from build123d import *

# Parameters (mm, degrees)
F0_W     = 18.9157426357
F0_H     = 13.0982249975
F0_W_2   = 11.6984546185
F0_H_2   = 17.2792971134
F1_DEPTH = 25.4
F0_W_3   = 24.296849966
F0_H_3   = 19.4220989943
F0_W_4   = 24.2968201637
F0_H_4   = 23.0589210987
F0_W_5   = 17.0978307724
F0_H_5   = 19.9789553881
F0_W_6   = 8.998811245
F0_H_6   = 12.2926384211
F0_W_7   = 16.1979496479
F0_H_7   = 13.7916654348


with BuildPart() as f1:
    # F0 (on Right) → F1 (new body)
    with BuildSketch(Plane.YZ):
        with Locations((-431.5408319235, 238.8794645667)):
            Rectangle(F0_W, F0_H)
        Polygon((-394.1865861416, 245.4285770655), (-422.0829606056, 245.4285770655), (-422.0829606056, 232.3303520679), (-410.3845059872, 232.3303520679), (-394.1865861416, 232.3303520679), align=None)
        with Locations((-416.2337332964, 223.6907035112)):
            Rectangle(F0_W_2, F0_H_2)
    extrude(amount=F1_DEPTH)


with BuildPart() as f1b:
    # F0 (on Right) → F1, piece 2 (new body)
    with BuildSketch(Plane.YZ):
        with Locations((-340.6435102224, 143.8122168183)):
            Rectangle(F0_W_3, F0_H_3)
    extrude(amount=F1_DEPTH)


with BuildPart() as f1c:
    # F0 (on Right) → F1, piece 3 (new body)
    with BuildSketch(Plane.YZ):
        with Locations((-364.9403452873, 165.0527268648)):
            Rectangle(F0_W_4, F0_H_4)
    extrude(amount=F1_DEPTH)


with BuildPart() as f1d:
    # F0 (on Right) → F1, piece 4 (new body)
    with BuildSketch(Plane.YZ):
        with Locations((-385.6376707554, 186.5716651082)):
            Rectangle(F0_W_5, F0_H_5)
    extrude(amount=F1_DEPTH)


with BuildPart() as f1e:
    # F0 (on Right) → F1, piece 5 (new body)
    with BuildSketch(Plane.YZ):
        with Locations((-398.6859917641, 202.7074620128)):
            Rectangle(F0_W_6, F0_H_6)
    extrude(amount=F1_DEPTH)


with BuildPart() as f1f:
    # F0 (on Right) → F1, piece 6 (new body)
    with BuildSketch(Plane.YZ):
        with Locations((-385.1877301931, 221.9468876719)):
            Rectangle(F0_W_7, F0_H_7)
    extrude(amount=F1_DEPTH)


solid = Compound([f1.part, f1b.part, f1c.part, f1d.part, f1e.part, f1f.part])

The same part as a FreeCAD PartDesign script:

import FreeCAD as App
import Part
import Sketcher

V = App.Vector
Q = App.Units.Quantity


def add_polygon(sketch, points):
    """Adds a closed chain of lines whose ends are joined by coincident constraints."""
    first, n = sketch.GeometryCount, len(points)
    for a, b in zip(points, points[1:] + points[:1]):
        sketch.addGeometry(Part.LineSegment(App.Vector(*a, 0), App.Vector(*b, 0)), False)
    for i in range(n):
        sketch.addConstraint(Sketcher.Constraint("Coincident", first + i, 2, first + (i + 1) % n, 1))

doc = App.newDocument("Part")
params = doc.addObject("Spreadsheet::Sheet", "Params")
for row, (alias, value) in enumerate([
    ("pad1_length", "1 in"),
    ("pad2_length", "1 in"),
    ("pad3_length", "1 in"),
    ("pad4_length", "1 in"),
    ("pad5_length", "1 in"),
    ("pad6_length", "1 in"),
], start=1):
    params.set(f"A{row}", alias)
    params.set(f"B{row}", "=" + value)
    params.setAlias(f"B{row}", alias)

body = doc.addObject("PartDesign::Body", "Body")

sketch1 = doc.addObject("Sketcher::SketchObject", "Sketch")
body.addObject(sketch1)
sketch1.AttachmentSupport = (doc.YZ_Plane, [""])
sketch1.MapMode = "FlatFace"
add_polygon(sketch1, [(-441, 245), (-441, 232), (-422, 232), (-422, 215), (-410, 215), (-410, 232), (-394, 232), (-394, 245), (-422, 245)])
sketch1.addConstraint(Sketcher.Constraint("Vertical", 0))
sketch1.addConstraint(Sketcher.Constraint("Horizontal", 1))
sketch1.addConstraint(Sketcher.Constraint("Vertical", 2))
sketch1.addConstraint(Sketcher.Constraint("Horizontal", 3))
sketch1.addConstraint(Sketcher.Constraint("Vertical", 4))
sketch1.addConstraint(Sketcher.Constraint("Horizontal", 5))
sketch1.addConstraint(Sketcher.Constraint("Vertical", 6))
sketch1.addConstraint(Sketcher.Constraint("Horizontal", 7))
sketch1.addConstraint(Sketcher.Constraint("Horizontal", 8))
sketch1.addConstraint(Sketcher.Constraint("Horizontal", 1, 2, 4, 2))
sketch1.addConstraint(Sketcher.Constraint("Vertical", 2, 2, 7, 2))
sketch1.addConstraint(Sketcher.Constraint("DistanceX", 5, 1, 5, 2, Q("16.19792 mm")))
sketch1.addConstraint(Sketcher.Constraint("DistanceX", 1, 1, 1, 2, Q("18.915743 mm")))
sketch1.addConstraint(Sketcher.Constraint("DistanceX", 3, 1, 3, 2, Q("11.698455 mm")))
sketch1.addConstraint(Sketcher.Constraint("DistanceY", 0, 2, 0, 1, Q("13.098225 mm")))
sketch1.addConstraint(Sketcher.Constraint("DistanceY", 2, 2, 2, 1, Q("17.279297 mm")))
sketch1.addConstraint(Sketcher.Constraint("DistanceX", 1, 2, -1, 1, Q("422.082961 mm")))
sketch1.addConstraint(Sketcher.Constraint("DistanceY", -1, 1, 0, 2, Q("232.330352 mm")))
pad1 = doc.addObject("PartDesign::Pad", "Pad")
body.addObject(pad1)
pad1.Profile = sketch1
pad1.setExpression("Length", "Params.pad1_length")
body2 = doc.addObject("PartDesign::Body", "Body001")

sketch2 = doc.addObject("Sketcher::SketchObject", "Sketch001")
body2.addObject(sketch2)
sketch2.AttachmentSupport = (doc.getObject("YZ_Plane001"), [""])
sketch2.MapMode = "FlatFace"
add_polygon(sketch2, [(-353, 154), (-353, 134), (-328, 134), (-328, 154)])
sketch2.addConstraint(Sketcher.Constraint("Vertical", 0))
sketch2.addConstraint(Sketcher.Constraint("Horizontal", 1))
sketch2.addConstraint(Sketcher.Constraint("Vertical", 2))
sketch2.addConstraint(Sketcher.Constraint("Horizontal", 3))
sketch2.addConstraint(Sketcher.Constraint("DistanceY", 0, 2, 0, 1, Q("19.422099 mm")))
sketch2.addConstraint(Sketcher.Constraint("DistanceX", 1, 1, 1, 2, Q("24.29685 mm")))
sketch2.addConstraint(Sketcher.Constraint("DistanceX", 0, 2, -1, 1, Q("352.791935 mm")))
sketch2.addConstraint(Sketcher.Constraint("DistanceY", -1, 1, 0, 2, Q("134.101167 mm")))
pad2 = doc.addObject("PartDesign::Pad", "Pad001")
body2.addObject(pad2)
pad2.Profile = sketch2
pad2.setExpression("Length", "Params.pad2_length")
body3 = doc.addObject("PartDesign::Body", "Body002")

sketch3 = doc.addObject("Sketcher::SketchObject", "Sketch002")
body3.addObject(sketch3)
sketch3.AttachmentSupport = (doc.getObject("YZ_Plane002"), [""])
sketch3.MapMode = "FlatFace"
add_polygon(sketch3, [(-377, 177), (-377, 154), (-353, 154), (-353, 177)])
sketch3.addConstraint(Sketcher.Constraint("Vertical", 0))
sketch3.addConstraint(Sketcher.Constraint("Horizontal", 1))
sketch3.addConstraint(Sketcher.Constraint("Vertical", 2))
sketch3.addConstraint(Sketcher.Constraint("Horizontal", 3))
sketch3.addConstraint(Sketcher.Constraint("DistanceX", 1, 1, 1, 2, Q("24.29682 mm")))
sketch3.addConstraint(Sketcher.Constraint("DistanceY", 0, 2, 0, 1, Q("23.058921 mm")))
sketch3.addConstraint(Sketcher.Constraint("DistanceX", 0, 2, -1, 1, Q("377.088755 mm")))
sketch3.addConstraint(Sketcher.Constraint("DistanceY", -1, 1, 0, 2, Q("153.523266 mm")))
pad3 = doc.addObject("PartDesign::Pad", "Pad002")
body3.addObject(pad3)
pad3.Profile = sketch3
pad3.setExpression("Length", "Params.pad3_length")
body4 = doc.addObject("PartDesign::Body", "Body003")

sketch4 = doc.addObject("Sketcher::SketchObject", "Sketch003")
body4.addObject(sketch4)
sketch4.AttachmentSupport = (doc.getObject("YZ_Plane003"), [""])
sketch4.MapMode = "FlatFace"
add_polygon(sketch4, [(-394, 197), (-394, 177), (-377, 177), (-377, 197)])
sketch4.addConstraint(Sketcher.Constraint("Vertical", 0))
sketch4.addConstraint(Sketcher.Constraint("Horizontal", 1))
sketch4.addConstraint(Sketcher.Constraint("Vertical", 2))
sketch4.addConstraint(Sketcher.Constraint("Horizontal", 3))
sketch4.addConstraint(Sketcher.Constraint("DistanceX", 1, 1, 1, 2, Q("17.097831 mm")))
sketch4.addConstraint(Sketcher.Constraint("DistanceY", 0, 2, 0, 1, Q("19.978955 mm")))
sketch4.addConstraint(Sketcher.Constraint("DistanceX", 0, 2, -1, 1, Q("394.186586 mm")))
sketch4.addConstraint(Sketcher.Constraint("DistanceY", -1, 1, 0, 2, Q("176.582187 mm")))
pad4 = doc.addObject("PartDesign::Pad", "Pad003")
body4.addObject(pad4)
pad4.Profile = sketch4
pad4.setExpression("Length", "Params.pad4_length")
body5 = doc.addObject("PartDesign::Body", "Body004")

sketch5 = doc.addObject("Sketcher::SketchObject", "Sketch004")
body5.addObject(sketch5)
sketch5.AttachmentSupport = (doc.getObject("YZ_Plane004"), [""])
sketch5.MapMode = "FlatFace"
add_polygon(sketch5, [(-403, 209), (-403, 197), (-394, 197), (-394, 209)])
sketch5.addConstraint(Sketcher.Constraint("Vertical", 0))
sketch5.addConstraint(Sketcher.Constraint("Horizontal", 1))
sketch5.addConstraint(Sketcher.Constraint("Vertical", 2))
sketch5.addConstraint(Sketcher.Constraint("Horizontal", 3))
sketch5.addConstraint(Sketcher.Constraint("DistanceX", 1, 1, 1, 2, Q("8.998811 mm")))
sketch5.addConstraint(Sketcher.Constraint("DistanceY", 0, 2, 0, 1, Q("12.292638 mm")))
sketch5.addConstraint(Sketcher.Constraint("DistanceY", -1, 1, 2, 2, Q("208.853781 mm")))
sketch5.addConstraint(Sketcher.Constraint("DistanceX", 0, 2, -1, 1, Q("403.185397 mm")))
pad5 = doc.addObject("PartDesign::Pad", "Pad004")
body5.addObject(pad5)
pad5.Profile = sketch5
pad5.setExpression("Length", "Params.pad5_length")
body6 = doc.addObject("PartDesign::Body", "Body005")

sketch6 = doc.addObject("Sketcher::SketchObject", "Sketch005")
body6.addObject(sketch6)
sketch6.AttachmentSupport = (doc.getObject("YZ_Plane005"), [""])
sketch6.MapMode = "FlatFace"
add_polygon(sketch6, [(-393, 229), (-393, 215), (-377, 215), (-377, 229)])
sketch6.addConstraint(Sketcher.Constraint("Vertical", 0))
sketch6.addConstraint(Sketcher.Constraint("Horizontal", 1))
sketch6.addConstraint(Sketcher.Constraint("Vertical", 2))
sketch6.addConstraint(Sketcher.Constraint("Horizontal", 3))
sketch6.addConstraint(Sketcher.Constraint("DistanceX", 1, 1, 1, 2, Q("16.19795 mm")))
sketch6.addConstraint(Sketcher.Constraint("DistanceY", 0, 2, 0, 1, Q("13.791665 mm")))
sketch6.addConstraint(Sketcher.Constraint("DistanceY", -1, 1, 2, 2, Q("228.84272 mm")))
sketch6.addConstraint(Sketcher.Constraint("DistanceX", 0, 2, -1, 1, Q("393.286705 mm")))
pad6 = doc.addObject("PartDesign::Pad", "Pad005")
body6.addObject(pad6)
pad6.Profile = sketch6
pad6.setExpression("Length", "Params.pad6_length")

doc.recompute()
